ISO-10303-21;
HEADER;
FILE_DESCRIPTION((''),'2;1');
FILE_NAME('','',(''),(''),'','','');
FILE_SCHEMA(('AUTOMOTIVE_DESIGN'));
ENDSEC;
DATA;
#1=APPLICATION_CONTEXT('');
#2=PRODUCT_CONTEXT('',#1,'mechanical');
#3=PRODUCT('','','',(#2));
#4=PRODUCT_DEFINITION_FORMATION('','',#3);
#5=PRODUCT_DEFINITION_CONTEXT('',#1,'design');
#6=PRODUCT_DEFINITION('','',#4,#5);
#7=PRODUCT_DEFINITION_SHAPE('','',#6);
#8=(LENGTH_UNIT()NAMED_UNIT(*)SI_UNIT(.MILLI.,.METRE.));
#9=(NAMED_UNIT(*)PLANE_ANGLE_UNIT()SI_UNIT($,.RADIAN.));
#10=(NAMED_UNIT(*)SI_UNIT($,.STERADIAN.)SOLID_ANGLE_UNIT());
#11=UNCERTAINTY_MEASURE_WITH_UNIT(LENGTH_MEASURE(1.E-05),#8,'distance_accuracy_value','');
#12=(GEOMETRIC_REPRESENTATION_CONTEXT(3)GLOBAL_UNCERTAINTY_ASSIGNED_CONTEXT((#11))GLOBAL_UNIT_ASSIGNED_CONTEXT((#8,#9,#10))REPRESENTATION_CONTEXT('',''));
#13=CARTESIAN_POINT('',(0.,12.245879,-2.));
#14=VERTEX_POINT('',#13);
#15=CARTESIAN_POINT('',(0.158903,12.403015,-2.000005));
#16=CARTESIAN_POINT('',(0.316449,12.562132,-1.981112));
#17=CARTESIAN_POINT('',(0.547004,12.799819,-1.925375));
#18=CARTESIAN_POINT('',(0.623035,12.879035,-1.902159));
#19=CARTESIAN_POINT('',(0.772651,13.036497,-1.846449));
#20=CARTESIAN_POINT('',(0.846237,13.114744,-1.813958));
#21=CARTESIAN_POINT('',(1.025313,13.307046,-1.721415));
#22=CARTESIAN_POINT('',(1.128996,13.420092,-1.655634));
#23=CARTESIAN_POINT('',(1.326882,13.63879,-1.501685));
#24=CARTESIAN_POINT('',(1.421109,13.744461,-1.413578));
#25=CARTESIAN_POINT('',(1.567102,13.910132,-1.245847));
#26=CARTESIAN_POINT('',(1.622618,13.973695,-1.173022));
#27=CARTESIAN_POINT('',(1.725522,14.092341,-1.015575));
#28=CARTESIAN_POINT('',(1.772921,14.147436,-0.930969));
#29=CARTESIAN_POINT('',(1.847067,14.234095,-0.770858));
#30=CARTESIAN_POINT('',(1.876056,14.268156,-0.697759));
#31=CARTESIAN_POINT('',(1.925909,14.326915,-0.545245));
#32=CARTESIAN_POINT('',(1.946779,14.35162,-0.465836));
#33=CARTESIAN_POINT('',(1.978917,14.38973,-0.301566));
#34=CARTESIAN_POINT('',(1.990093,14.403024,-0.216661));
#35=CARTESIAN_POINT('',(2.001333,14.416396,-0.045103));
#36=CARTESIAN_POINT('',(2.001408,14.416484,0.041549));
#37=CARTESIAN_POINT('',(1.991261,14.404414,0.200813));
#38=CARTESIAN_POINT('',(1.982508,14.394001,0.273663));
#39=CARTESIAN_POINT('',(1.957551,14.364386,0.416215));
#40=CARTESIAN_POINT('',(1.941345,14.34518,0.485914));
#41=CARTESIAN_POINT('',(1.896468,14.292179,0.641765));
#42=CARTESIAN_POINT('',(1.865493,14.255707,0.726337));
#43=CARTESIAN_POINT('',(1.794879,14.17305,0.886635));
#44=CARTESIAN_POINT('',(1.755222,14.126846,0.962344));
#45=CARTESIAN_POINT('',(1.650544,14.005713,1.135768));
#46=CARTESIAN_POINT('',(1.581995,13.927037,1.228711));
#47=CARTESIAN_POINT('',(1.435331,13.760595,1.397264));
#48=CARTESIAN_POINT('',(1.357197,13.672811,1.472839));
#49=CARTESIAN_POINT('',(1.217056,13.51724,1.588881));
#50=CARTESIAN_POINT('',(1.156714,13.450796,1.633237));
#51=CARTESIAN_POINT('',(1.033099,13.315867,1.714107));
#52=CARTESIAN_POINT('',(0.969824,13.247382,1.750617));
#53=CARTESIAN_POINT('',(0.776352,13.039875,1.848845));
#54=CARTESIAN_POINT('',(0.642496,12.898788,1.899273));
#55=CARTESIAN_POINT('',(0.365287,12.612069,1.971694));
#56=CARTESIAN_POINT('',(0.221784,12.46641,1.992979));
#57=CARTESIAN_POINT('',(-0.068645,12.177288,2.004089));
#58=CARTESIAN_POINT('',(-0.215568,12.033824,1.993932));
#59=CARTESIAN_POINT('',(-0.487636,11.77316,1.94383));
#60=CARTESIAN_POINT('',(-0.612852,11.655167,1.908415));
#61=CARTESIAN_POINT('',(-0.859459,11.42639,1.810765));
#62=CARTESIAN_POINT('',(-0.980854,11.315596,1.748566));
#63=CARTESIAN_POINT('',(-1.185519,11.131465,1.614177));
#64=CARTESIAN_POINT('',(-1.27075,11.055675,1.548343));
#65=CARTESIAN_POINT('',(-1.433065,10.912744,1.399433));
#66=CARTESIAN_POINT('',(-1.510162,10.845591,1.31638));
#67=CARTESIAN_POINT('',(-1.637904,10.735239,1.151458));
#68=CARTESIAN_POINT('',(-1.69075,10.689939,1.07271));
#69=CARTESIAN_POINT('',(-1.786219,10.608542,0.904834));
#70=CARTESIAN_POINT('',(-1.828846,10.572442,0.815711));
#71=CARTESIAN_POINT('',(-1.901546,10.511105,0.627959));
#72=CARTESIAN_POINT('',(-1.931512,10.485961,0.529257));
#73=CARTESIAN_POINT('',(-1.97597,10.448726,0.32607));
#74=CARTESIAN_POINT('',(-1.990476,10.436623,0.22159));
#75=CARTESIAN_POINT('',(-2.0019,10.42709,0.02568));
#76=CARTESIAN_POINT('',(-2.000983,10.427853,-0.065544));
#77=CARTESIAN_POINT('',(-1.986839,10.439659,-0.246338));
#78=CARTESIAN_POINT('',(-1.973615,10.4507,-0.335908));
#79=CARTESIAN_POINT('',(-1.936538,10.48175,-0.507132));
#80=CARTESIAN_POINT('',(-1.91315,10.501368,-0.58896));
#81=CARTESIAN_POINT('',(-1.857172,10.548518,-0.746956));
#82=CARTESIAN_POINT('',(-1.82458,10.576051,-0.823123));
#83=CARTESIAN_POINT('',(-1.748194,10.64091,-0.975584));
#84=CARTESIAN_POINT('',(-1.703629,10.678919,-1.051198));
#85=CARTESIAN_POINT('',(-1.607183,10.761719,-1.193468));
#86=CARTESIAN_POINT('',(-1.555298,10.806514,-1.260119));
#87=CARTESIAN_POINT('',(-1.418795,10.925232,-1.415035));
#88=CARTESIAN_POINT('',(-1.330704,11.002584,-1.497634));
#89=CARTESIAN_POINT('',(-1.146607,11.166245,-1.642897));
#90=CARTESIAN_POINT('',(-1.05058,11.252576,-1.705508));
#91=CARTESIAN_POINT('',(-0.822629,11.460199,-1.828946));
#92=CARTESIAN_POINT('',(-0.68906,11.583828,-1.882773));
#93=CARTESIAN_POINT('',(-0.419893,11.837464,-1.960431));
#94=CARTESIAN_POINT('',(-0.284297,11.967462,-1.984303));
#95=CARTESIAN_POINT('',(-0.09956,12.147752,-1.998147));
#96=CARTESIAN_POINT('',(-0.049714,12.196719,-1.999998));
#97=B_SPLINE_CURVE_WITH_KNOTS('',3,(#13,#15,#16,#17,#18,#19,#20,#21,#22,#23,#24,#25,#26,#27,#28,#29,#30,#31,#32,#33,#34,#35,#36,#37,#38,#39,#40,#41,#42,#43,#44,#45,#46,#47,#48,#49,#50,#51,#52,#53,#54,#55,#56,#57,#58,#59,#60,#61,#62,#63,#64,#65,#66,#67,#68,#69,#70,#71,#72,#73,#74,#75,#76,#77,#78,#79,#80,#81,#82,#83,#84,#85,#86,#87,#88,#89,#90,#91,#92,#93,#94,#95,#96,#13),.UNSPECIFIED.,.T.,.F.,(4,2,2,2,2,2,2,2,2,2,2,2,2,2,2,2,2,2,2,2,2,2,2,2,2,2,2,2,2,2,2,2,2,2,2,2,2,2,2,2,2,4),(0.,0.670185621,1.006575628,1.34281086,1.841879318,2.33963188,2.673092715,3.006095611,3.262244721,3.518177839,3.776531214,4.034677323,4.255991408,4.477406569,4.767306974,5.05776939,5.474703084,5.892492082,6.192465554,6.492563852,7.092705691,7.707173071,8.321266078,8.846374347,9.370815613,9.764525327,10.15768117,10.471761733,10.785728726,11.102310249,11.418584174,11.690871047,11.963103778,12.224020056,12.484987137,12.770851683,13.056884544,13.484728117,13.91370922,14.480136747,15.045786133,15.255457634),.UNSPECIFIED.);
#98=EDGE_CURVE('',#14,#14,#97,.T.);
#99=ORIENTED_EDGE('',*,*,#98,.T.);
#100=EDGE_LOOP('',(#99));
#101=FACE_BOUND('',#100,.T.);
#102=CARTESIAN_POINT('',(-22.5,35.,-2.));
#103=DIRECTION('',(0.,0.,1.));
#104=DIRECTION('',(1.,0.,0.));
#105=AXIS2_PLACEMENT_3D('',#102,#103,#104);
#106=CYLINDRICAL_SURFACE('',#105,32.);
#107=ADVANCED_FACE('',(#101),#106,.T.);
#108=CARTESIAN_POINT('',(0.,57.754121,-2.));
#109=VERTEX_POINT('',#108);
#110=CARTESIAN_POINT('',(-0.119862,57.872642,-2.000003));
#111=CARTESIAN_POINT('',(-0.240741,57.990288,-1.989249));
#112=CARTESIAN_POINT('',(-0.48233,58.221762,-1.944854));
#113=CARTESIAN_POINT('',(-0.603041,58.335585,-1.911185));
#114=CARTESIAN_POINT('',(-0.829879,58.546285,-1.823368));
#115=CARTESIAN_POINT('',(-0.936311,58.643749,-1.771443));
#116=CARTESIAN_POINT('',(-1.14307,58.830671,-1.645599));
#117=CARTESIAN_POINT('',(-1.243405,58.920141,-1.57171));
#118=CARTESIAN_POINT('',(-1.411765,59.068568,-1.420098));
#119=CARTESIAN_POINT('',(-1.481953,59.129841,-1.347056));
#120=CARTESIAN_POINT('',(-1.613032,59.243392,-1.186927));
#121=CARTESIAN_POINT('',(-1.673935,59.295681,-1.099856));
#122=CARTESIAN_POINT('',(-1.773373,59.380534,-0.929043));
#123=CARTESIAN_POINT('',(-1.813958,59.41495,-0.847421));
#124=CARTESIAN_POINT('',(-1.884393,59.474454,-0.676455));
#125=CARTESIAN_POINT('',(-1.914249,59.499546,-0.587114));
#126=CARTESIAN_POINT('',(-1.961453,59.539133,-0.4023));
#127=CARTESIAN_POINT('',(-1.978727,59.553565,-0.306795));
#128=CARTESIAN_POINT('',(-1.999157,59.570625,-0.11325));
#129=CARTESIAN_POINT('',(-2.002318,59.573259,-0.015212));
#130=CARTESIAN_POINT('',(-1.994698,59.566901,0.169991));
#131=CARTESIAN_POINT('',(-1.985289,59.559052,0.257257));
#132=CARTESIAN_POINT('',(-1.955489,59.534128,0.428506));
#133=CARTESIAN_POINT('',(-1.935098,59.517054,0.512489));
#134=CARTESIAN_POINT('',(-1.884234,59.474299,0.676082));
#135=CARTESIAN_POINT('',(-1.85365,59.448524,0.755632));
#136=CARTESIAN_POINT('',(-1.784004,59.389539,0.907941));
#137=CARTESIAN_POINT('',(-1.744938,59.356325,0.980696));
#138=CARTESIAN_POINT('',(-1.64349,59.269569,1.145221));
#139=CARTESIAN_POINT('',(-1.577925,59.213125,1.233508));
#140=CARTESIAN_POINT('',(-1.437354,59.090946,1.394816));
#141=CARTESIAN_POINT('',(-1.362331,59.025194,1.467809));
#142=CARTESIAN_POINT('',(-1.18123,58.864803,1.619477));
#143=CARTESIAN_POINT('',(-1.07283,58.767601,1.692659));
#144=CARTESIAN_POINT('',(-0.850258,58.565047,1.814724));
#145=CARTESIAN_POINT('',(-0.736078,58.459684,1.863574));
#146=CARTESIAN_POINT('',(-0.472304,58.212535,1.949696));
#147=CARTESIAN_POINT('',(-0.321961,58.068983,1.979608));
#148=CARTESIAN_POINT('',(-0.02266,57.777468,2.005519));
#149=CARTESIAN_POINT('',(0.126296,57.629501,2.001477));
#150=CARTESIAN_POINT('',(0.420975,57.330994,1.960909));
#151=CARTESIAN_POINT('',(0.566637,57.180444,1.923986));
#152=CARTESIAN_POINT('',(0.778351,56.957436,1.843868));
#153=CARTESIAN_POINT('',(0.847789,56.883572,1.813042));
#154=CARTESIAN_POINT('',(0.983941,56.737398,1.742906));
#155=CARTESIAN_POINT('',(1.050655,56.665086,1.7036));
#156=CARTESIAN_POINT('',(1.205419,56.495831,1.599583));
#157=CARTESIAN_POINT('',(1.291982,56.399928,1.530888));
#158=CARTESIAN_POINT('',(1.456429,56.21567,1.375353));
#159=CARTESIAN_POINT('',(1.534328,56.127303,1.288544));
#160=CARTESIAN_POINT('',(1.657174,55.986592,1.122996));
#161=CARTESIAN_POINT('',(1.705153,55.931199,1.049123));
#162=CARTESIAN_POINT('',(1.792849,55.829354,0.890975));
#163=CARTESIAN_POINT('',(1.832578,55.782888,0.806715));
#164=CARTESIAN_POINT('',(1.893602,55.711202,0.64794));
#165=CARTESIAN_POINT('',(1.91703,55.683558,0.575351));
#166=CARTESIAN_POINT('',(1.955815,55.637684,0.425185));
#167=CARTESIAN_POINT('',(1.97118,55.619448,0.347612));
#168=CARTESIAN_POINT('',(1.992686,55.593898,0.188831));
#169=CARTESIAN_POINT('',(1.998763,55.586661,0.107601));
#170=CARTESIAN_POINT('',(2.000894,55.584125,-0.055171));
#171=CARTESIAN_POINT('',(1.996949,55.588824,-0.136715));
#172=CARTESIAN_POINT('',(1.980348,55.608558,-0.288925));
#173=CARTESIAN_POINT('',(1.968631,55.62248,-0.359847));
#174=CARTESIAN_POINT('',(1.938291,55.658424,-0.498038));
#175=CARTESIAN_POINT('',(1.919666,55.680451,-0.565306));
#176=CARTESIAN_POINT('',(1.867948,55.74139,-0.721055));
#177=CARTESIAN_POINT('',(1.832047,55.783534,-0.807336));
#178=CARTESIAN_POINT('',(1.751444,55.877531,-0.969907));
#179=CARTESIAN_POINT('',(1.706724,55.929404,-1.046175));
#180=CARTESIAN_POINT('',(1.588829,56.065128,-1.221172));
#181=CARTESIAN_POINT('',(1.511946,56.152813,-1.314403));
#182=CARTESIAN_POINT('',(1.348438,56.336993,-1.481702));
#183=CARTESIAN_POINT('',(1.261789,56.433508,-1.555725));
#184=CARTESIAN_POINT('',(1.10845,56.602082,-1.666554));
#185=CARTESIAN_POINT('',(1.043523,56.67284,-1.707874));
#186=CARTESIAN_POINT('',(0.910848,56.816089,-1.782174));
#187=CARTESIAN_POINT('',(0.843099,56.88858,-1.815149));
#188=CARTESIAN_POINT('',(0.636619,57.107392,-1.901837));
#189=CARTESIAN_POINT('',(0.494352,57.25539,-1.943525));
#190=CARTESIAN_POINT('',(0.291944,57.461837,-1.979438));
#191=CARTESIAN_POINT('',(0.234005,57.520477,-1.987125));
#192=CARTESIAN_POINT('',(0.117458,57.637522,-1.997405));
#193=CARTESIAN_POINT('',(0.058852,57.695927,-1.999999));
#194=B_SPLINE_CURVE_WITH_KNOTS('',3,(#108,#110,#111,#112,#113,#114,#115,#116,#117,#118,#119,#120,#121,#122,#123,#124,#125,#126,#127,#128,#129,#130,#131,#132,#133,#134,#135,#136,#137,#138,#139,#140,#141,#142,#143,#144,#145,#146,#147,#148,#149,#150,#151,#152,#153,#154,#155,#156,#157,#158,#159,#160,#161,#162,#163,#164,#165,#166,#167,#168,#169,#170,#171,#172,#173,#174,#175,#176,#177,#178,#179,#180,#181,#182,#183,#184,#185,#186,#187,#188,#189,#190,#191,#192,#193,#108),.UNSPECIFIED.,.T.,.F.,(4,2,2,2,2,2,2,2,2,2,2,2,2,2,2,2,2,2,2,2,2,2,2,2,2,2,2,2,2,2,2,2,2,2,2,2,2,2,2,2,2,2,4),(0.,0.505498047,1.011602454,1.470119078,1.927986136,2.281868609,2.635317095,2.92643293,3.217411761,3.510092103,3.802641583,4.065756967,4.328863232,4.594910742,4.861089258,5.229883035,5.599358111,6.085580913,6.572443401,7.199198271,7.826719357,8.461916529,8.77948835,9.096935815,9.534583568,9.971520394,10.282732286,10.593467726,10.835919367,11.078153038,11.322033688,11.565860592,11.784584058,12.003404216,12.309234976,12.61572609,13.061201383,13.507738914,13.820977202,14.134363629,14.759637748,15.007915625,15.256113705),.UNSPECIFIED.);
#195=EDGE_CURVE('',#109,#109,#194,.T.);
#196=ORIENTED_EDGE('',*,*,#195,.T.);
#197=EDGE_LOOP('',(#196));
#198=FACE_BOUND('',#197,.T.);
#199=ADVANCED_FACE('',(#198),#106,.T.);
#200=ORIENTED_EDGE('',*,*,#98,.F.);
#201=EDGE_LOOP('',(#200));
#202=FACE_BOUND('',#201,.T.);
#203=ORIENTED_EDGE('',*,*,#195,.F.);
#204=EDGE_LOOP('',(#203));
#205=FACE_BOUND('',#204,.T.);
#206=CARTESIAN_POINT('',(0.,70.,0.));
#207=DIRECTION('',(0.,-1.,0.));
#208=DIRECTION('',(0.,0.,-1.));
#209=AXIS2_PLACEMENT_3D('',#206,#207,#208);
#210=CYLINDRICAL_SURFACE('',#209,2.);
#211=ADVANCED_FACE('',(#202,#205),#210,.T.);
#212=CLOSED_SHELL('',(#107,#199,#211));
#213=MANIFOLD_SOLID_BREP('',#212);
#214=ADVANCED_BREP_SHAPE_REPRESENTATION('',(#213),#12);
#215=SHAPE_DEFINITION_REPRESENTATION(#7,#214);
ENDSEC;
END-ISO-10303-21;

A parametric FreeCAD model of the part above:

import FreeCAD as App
import Part
import Sketcher
Q = App.Units.Quantity

doc = App.newDocument("Part")
body = doc.addObject("PartDesign::Body", "Body")

sketch1 = body.newObject("Sketcher::SketchObject", "Sketch")
sketch1.AttachmentSupport = (doc.getObject("XZ_Plane"), [""])
sketch1.MapMode = "FlatFace"
sketch1.addGeometry(Part.Circle(App.Vector(0, 0, 0), App.Vector(0, 0, 1), 2), False)
sketch1.addConstraint([
    Sketcher.Constraint("Coincident", 0, 3, -1, 1),
    Sketcher.Constraint("Diameter", 0, Q("4 mm")),
])
pad1 = body.newObject("PartDesign::Pad", "Pad")
pad1.Profile = sketch1
pad1.Length = 70
pad1.Reversed = True

sketch2 = body.newObject("Sketcher::SketchObject", "Sketch001")
sketch2.AttachmentSupport = (doc.getObject("XY_Plane"), [""])
sketch2.MapMode = "FlatFace"
sketch2.addGeometry([
    Part.Circle(App.Vector(-22, 35, 0), App.Vector(0, 0, 1), 62),
    Part.Circle(App.Vector(-22, 35, 0), App.Vector(0, 0, 1), 32),
], False)
sketch2.addConstraint([
    Sketcher.Constraint("Coincident", 1, 3, 0, 3),
    Sketcher.Constraint("Diameter", 1, Q("64 mm")),
    Sketcher.Constraint("DistanceY", -1, 1, 0, 3, Q("35 mm")),
    Sketcher.Constraint("DistanceX", 0, 3, -1, 1, Q("22.5 mm")),
    Sketcher.Constraint("Diameter", 0, Q("124.41118 mm")),
])
pocket1 = body.newObject("PartDesign::Pocket", "Pocket")
pocket1.Profile = sketch2
pocket1.Type = "ThroughAll"
pocket1.Midplane = True

doc.recompute()
